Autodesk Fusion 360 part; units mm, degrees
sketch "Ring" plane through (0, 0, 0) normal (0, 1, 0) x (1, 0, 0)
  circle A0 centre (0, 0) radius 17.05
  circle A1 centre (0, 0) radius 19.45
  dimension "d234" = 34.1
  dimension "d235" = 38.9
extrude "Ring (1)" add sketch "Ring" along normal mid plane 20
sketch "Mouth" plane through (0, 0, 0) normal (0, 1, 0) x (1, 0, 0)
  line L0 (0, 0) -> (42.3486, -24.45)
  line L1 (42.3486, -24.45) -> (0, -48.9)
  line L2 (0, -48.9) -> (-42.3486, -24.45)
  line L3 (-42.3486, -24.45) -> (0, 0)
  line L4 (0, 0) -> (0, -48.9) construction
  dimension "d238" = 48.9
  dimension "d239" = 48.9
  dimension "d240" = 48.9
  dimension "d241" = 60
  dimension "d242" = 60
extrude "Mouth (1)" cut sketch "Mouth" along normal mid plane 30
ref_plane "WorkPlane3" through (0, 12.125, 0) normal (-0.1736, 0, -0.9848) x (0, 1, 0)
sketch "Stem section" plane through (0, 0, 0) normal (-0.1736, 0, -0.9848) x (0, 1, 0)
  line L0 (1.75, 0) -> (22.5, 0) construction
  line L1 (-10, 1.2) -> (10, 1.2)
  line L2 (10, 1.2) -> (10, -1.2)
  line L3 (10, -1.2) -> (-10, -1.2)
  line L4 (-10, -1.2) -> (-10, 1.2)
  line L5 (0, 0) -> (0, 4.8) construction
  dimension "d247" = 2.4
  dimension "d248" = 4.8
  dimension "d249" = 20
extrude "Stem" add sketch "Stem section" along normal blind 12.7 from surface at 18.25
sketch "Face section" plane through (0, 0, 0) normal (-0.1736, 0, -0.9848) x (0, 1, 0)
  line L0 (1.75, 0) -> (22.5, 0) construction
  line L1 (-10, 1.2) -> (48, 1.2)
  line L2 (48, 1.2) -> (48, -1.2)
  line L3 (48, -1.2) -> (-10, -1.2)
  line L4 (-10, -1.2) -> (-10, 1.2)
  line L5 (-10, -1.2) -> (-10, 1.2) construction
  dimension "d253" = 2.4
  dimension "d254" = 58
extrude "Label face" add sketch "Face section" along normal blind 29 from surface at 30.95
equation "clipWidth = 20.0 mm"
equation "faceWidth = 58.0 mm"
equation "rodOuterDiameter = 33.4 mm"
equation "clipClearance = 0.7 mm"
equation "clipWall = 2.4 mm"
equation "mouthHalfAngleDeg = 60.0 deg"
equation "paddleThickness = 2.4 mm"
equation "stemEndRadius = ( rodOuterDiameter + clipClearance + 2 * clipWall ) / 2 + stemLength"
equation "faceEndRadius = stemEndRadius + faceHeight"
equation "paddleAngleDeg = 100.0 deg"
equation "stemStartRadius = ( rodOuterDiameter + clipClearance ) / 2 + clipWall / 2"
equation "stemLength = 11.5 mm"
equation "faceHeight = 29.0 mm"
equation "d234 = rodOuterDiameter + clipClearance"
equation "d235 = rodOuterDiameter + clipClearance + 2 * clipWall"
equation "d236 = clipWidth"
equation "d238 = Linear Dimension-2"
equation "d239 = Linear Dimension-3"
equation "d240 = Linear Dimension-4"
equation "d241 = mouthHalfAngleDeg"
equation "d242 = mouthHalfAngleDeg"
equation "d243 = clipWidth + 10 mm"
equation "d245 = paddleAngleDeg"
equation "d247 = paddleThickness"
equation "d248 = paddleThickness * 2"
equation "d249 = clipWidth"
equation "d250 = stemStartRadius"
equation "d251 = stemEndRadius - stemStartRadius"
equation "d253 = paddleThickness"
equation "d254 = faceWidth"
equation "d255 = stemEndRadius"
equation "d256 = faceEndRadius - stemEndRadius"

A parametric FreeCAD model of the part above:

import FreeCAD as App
import Part
import Sketcher

doc = App.newDocument("Part")
params = doc.addObject("Spreadsheet::Sheet", "Params")
for row, (alias, value) in enumerate([
    ("sketch1_diameter", "38.9 mm"),
    ("sketch1_diameter2", "34.1 mm"),
    ("pad1_length", "20 mm"),
    ("sketch2_length", "48.9 mm"),
    ("pocket1_length", "30 mm"),
    ("sketch3_width", "20 mm"),
    ("sketch3_height", "2.4 mm"),
    ("pad2_length", "12.7 mm"),
    ("sketch4_width", "58 mm"),
    ("sketch4_height", "2.4 mm"),
    ("pad3_length", "29 mm"),
], start=1):
    params.set(f"A{row}", alias)
    params.set(f"B{row}", "=" + value)
    params.setAlias(f"B{row}", alias)

body = doc.addObject("PartDesign::Body", "Body")

# Sketch on XZ plane
sketch1 = body.newObject("Sketcher::SketchObject", "Sketch")
sketch1.AttachmentSupport = (doc.getObject("XZ_Plane"), [""])
sketch1.MapMode = "FlatFace"
sketch1.addGeometry([
    Part.Circle(App.Vector(0, 0, 0), App.Vector(0, 0, 1), 19),
    Part.Circle(App.Vector(0, 0, 0), App.Vector(0, 0, 1), 17),
], False)
sketch1.addConstraint([
    Sketcher.Constraint("Coincident", 0, 3, -1, 1),
    Sketcher.Constraint("Coincident", 1, 3, -1, 1),
    Sketcher.Constraint("Diameter", 0, 38.9),
    Sketcher.Constraint("Diameter", 1, 34.1),
])
sketch1.setExpression("Constraints[2]", "Params.sketch1_diameter")
sketch1.setExpression("Constraints[3]", "Params.sketch1_diameter2")
pad1 = body.newObject("PartDesign::Pad", "Pad")
pad1.Profile = sketch1
pad1.setExpression("Length", "Params.pad1_length")
pad1.Midplane = True

# Sketch on XZ plane
sketch2 = body.newObject("Sketcher::SketchObject", "Sketch001")
sketch2.AttachmentSupport = (doc.getObject("XZ_Plane"), [""])
sketch2.MapMode = "FlatFace"
sketch2.addGeometry([
    Part.LineSegment(App.Vector(42, 24, 0), App.Vector(0, 0, 0)),
    Part.LineSegment(App.Vector(0, 0, 0), App.Vector(-42, 24, 0)),
    Part.LineSegment(App.Vector(-42, 24, 0), App.Vector(0, 49, 0)),
    Part.LineSegment(App.Vector(0, 49, 0), App.Vector(42, 24, 0)),
], False)
sketch2.addConstraint([
    Sketcher.Constraint("Coincident", 0, 2, 1, 1),
    Sketcher.Constraint("Coincident", 1, 2, 2, 1),
    Sketcher.Constraint("Coincident", 2, 2, 3, 1),
    Sketcher.Constraint("Coincident", 3, 2, 0, 1),
    Sketcher.Constraint("Coincident", 0, 2, -1, 1),
    Sketcher.Constraint("Symmetric", 1, 2, 3, 2, -2),
    Sketcher.Constraint("PointOnObject", 2, 2, -2),
    Sketcher.Constraint("Parallel", 0, 2),
    Sketcher.Constraint("Distance", 0, 48.9),
    Sketcher.Constraint("DistanceY", -1, 1, 2, 2, 48.9),
])
sketch2.setExpression("Constraints[8]", "Params.sketch2_length")
pocket1 = body.newObject("PartDesign::Pocket", "Pocket")
pocket1.Profile = sketch2
pocket1.setExpression("Length", "Params.pocket1_length")
pocket1.Midplane = True

# Sketch on an angled plane
sketch3 = body.newObject("Sketcher::SketchObject", "Sketch002")
sketch3.Placement = App.Placement(App.Vector(-3.169079, 0, -17.972741), App.Rotation(App.Vector(0, 1, 0), App.Vector(0.984807753, 0, -0.173648178), App.Vector(-0.173648178, 0, -0.984807753), "ZXY"))
sketch3.addGeometry([
    Part.LineSegment(App.Vector(10, 1.2, 0), App.Vector(-10, 1.2, 0)),
    Part.LineSegment(App.Vector(-10, 1.2, 0), App.Vector(-10, -1.2, 0)),
    Part.LineSegment(App.Vector(-10, -1.2, 0), App.Vector(10, -1.2, 0)),
    Part.LineSegment(App.Vector(10, -1.2, 0), App.Vector(10, 1.2, 0)),
], False)
sketch3.addConstraint([
    Sketcher.Constraint("Coincident", 0, 2, 1, 1),
    Sketcher.Constraint("Coincident", 1, 2, 2, 1),
    Sketcher.Constraint("Coincident", 2, 2, 3, 1),
    Sketcher.Constraint("Coincident", 3, 2, 0, 1),
    Sketcher.Constraint("Horizontal", 0),
    Sketcher.Constraint("Vertical", 1),
    Sketcher.Constraint("Horizontal", 2),
    Sketcher.Constraint("Vertical", 3),
    Sketcher.Constraint("Symmetric", 0, 2, 2, 2, -1, 1),
    Sketcher.Constraint("DistanceX", 0, 2, 0, 1, 20.0),
    Sketcher.Constraint("DistanceY", 1, 2, 1, 1, 2.4),
])
sketch3.setExpression("Constraints[9]", "Params.sketch3_width")
sketch3.setExpression("Constraints[10]", "Params.sketch3_height")
pad2 = body.newObject("PartDesign::Pad", "Pad001")
pad2.Profile = sketch3
pad2.setExpression("Length", "Params.pad2_length")

# Sketch on an angled plane
sketch4 = body.newObject("Sketcher::SketchObject", "Sketch003")
sketch4.Placement = App.Placement(App.Vector(-5.374411, 0, -30.4798), App.Rotation(App.Vector(0, 1, 0), App.Vector(0.984807753, 0, -0.173648178), App.Vector(-0.173648178, 0, -0.984807753), "ZXY"))
sketch4.addGeometry([
    Part.LineSegment(App.Vector(48, 1.2, 0), App.Vector(-10, 1.2, 0)),
    Part.LineSegment(App.Vector(-10, 1.2, 0), App.Vector(-10, -1.2, 0)),
    Part.LineSegment(App.Vector(-10, -1.2, 0), App.Vector(48, -1.2, 0)),
    Part.LineSegment(App.Vector(48, -1.2, 0), App.Vector(48, 1.2, 0)),
], False)
sketch4.addConstraint([
    Sketcher.Constraint("Coincident", 0, 2, 1, 1),
    Sketcher.Constraint("Coincident", 1, 2, 2, 1),
    Sketcher.Constraint("Coincident", 2, 2, 3, 1),
    Sketcher.Constraint("Coincident", 3, 2, 0, 1),
    Sketcher.Constraint("Horizontal", 0),
    Sketcher.Constraint("Vertical", 1),
    Sketcher.Constraint("Horizontal", 2),
    Sketcher.Constraint("Vertical", 3),
    Sketcher.Constraint("DistanceX", 0, 2, 0, 1, 58.0),
    Sketcher.Constraint("DistanceY", 1, 2, 1, 1, 2.4),
    Sketcher.Constraint("DistanceX", 0, 2, -1, 1, 10.0),
    Sketcher.Constraint("DistanceY", -1, 1, 0, 2, 1.2),
])
sketch4.setExpression("Constraints[8]", "Params.sketch4_width")
sketch4.setExpression("Constraints[9]", "Params.sketch4_height")
pad3 = body.newObject("PartDesign::Pad", "Pad002")
pad3.Profile = sketch4
pad3.setExpression("Length", "Params.pad3_length")

doc.recompute()
